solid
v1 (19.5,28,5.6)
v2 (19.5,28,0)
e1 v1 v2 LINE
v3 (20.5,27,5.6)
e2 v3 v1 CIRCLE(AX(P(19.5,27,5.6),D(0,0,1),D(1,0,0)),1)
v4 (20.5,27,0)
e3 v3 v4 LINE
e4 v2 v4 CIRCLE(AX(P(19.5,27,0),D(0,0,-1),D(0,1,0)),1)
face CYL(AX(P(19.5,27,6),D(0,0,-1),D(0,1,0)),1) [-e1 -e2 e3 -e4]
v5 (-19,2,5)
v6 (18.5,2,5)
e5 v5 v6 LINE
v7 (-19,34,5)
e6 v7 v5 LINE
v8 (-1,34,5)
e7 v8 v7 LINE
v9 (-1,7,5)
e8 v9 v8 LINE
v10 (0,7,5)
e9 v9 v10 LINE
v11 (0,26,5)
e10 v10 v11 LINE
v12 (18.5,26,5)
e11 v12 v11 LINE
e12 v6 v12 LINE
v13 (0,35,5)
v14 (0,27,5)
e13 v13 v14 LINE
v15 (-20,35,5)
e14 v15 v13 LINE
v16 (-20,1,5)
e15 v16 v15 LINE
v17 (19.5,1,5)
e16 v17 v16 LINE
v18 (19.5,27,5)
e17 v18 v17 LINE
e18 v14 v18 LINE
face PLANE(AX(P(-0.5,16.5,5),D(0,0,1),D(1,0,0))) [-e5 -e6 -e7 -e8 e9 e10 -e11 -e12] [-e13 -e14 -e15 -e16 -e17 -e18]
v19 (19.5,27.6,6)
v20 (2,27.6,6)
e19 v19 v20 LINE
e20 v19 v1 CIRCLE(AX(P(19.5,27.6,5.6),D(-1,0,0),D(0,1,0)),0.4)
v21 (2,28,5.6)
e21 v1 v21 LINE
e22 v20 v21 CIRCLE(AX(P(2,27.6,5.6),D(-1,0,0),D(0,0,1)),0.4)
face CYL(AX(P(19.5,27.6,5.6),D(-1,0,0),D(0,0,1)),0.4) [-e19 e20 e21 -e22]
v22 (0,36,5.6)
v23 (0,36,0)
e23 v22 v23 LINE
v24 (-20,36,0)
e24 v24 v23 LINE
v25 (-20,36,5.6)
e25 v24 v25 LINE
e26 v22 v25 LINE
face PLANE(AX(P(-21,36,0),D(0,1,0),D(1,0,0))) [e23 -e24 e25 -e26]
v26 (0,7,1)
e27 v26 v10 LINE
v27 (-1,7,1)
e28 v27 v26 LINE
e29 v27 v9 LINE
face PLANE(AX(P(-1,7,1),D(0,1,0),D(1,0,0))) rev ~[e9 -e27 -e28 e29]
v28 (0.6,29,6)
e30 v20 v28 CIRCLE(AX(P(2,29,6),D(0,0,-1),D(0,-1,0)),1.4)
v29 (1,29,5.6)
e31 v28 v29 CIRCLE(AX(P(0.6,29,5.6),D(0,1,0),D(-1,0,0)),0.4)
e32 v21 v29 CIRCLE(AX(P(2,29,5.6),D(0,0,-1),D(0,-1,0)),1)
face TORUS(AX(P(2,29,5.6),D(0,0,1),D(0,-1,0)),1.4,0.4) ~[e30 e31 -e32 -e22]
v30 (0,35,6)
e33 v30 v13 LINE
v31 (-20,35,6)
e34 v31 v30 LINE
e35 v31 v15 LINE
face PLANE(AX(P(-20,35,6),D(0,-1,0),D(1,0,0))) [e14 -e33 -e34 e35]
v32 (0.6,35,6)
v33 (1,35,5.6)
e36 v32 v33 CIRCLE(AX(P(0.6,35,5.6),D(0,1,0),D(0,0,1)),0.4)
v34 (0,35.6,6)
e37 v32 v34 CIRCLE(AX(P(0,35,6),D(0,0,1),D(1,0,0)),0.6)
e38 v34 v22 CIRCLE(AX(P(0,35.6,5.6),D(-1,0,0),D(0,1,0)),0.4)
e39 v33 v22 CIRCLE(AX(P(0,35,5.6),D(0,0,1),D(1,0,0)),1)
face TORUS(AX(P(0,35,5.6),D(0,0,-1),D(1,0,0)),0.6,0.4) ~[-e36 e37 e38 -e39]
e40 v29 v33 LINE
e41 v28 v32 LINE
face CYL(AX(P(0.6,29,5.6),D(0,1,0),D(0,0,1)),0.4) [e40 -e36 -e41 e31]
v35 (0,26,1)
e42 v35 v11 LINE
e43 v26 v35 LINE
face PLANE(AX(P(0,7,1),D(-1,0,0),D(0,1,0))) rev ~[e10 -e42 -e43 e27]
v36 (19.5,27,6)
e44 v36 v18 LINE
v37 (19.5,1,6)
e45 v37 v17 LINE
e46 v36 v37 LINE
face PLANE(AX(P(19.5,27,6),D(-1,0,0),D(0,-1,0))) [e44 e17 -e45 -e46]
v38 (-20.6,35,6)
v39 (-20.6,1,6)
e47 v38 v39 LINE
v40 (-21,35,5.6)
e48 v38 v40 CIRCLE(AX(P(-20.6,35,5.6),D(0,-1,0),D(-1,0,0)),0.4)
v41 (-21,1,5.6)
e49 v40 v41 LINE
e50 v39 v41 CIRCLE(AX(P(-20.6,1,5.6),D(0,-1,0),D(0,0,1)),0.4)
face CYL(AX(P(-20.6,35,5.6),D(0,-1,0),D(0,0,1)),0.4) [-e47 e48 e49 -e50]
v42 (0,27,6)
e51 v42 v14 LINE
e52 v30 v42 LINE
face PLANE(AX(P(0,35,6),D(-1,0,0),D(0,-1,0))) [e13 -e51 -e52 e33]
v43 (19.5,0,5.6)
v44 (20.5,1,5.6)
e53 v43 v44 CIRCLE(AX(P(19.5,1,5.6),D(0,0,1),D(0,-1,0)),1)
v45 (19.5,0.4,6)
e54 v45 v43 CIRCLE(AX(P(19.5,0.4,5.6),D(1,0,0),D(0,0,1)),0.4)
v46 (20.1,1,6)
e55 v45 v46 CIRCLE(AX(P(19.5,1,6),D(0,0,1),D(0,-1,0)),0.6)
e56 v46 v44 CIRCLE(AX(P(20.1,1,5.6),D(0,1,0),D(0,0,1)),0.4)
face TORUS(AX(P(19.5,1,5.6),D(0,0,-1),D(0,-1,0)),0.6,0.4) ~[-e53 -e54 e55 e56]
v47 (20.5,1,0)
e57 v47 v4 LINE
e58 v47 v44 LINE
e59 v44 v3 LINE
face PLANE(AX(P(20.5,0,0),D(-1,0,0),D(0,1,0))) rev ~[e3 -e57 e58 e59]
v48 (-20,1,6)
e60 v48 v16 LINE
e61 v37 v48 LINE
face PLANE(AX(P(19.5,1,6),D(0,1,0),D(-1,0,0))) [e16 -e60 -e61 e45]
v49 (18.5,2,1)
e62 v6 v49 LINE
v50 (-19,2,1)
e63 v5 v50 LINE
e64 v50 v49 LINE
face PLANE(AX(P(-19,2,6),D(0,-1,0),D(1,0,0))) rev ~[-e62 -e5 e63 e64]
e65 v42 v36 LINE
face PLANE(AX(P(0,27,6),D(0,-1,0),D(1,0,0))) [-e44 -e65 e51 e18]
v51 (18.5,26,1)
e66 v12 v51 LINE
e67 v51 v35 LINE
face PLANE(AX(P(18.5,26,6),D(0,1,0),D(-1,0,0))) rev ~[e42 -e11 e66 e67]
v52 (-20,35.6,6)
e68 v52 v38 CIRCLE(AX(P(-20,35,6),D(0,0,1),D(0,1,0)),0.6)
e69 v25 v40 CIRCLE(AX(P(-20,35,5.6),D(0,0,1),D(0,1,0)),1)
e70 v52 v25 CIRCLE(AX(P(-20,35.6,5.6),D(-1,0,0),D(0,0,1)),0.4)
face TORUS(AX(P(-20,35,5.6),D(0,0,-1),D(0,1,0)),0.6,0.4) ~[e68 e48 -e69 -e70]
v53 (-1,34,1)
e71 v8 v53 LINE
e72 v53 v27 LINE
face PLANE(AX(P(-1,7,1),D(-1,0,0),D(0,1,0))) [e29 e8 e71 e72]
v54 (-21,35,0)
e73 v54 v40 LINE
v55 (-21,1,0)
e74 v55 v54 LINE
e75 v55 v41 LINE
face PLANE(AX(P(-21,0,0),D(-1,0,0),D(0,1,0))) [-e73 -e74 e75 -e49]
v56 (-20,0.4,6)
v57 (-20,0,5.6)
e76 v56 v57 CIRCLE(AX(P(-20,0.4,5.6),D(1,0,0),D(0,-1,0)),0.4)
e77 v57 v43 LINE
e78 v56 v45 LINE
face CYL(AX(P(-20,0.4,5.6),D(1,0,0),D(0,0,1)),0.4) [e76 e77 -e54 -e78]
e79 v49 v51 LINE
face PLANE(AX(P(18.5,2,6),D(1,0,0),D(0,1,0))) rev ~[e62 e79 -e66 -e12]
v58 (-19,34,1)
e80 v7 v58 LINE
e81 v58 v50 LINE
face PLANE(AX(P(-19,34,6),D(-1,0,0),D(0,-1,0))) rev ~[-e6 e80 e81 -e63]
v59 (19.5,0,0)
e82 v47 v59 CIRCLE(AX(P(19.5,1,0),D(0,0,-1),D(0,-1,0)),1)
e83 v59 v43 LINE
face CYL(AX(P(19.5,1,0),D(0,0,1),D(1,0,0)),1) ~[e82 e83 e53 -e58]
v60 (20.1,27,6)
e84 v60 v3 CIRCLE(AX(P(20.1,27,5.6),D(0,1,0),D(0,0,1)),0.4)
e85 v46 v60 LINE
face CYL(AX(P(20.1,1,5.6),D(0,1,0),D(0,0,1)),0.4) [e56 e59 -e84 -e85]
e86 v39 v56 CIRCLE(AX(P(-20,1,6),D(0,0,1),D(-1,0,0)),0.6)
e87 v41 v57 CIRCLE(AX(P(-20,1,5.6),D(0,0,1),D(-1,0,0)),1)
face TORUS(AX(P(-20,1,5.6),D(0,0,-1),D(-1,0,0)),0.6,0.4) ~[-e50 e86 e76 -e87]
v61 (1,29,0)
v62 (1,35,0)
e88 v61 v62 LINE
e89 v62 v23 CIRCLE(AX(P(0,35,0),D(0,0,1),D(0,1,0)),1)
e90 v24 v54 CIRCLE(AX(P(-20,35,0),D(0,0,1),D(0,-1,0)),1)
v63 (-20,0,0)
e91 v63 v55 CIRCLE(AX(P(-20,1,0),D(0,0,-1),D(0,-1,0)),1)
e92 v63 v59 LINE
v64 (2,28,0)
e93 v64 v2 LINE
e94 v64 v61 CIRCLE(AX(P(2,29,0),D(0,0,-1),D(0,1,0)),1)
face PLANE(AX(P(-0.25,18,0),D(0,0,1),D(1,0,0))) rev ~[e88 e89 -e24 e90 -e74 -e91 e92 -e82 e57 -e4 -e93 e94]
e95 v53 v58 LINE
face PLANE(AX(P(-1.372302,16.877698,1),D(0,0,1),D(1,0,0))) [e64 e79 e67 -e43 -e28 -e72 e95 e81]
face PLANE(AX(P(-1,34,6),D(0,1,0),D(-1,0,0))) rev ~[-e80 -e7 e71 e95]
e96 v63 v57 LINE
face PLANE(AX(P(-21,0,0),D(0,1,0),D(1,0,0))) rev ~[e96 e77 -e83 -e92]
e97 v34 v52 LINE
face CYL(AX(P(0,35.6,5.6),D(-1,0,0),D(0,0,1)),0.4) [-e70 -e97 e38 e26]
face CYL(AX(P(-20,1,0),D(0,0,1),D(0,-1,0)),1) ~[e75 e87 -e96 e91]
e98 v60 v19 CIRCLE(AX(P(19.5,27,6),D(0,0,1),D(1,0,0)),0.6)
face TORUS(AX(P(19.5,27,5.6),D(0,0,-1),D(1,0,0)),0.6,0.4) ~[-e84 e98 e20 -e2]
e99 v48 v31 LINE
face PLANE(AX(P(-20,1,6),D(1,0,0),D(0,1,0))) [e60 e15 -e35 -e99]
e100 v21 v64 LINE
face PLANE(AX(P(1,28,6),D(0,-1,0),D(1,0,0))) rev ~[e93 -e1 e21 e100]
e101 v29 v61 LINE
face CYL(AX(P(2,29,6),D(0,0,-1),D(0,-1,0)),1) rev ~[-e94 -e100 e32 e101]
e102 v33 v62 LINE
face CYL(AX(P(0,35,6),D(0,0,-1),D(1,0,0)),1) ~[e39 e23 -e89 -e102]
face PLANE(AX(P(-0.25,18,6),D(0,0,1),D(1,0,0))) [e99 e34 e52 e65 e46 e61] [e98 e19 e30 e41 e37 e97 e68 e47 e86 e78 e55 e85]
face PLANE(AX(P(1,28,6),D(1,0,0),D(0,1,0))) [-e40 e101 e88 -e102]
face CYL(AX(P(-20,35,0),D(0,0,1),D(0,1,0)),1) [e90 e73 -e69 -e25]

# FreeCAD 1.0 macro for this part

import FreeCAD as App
import Part
import Sketcher


def edges_at(feature, points):
    """Names of the edges that pass closest to the given points."""
    edges = feature.Shape.Edges
    near = lambda p: min(range(len(edges)), key=lambda i: edges[i].distToShape(Part.Vertex(*p))[0])
    return sorted({f"Edge{near(p) + 1}" for p in points})

doc = App.newDocument("Part")
body = doc.addObject("PartDesign::Body", "Body")

# Sketch on XY plane
sketch1 = body.newObject("Sketcher::SketchObject", "Sketch")
sketch1.AttachmentSupport = (doc.getObject("XY_Plane"), [""])
sketch1.MapMode = "FlatFace"
sketch1.addGeometry(Part.LineSegment(App.Vector(-21, 36, 0), App.Vector(-21, 0, 0)), False)
sketch1.addGeometry(Part.LineSegment(App.Vector(-21, 0, 0), App.Vector(20, 0, 0)), False)
sketch1.addGeometry(Part.LineSegment(App.Vector(20, 0, 0), App.Vector(20, 36, 0)), False)
sketch1.addGeometry(Part.LineSegment(App.Vector(20, 36, 0), App.Vector(-21, 36, 0)), False)
sketch1.addConstraint(Sketcher.Constraint("Coincident", 0, 2, 1, 1))
sketch1.addConstraint(Sketcher.Constraint("Coincident", 1, 2, 2, 1))
sketch1.addConstraint(Sketcher.Constraint("Coincident", 2, 2, 3, 1))
sketch1.addConstraint(Sketcher.Constraint("Coincident", 3, 2, 0, 1))
sketch1.addConstraint(Sketcher.Constraint("Vertical", 0))
sketch1.addConstraint(Sketcher.Constraint("Horizontal", 1))
sketch1.addConstraint(Sketcher.Constraint("Vertical", 2))
sketch1.addConstraint(Sketcher.Constraint("Horizontal", 3))
sketch1.addConstraint(Sketcher.Constraint("PointOnObject", 0, 2, -1))
sketch1.addConstraint(Sketcher.Constraint("DistanceY", 0, 2, 0, 1, 36.0))
sketch1.addConstraint(Sketcher.Constraint("DistanceX", 1, 1, 1, 2, 41.5))
sketch1.addConstraint(Sketcher.Constraint("DistanceX", 0, 2, -1, 1, 21.0))
pad1 = body.newObject("PartDesign::Pad", "Pad")
pad1.Profile = sketch1
pad1.Length = 6

# Sketch on XY plane
sketch2 = body.newObject("Sketcher::SketchObject", "Sketch001")
sketch2.AttachmentSupport = (doc.getObject("XY_Plane"), [""])
sketch2.MapMode = "FlatFace"
sketch2.AttachmentOffset = App.Placement(App.Vector(0, 0, 6), App.Rotation())
sketch2.addGeometry(Part.LineSegment(App.Vector(-19, 2, 0), App.Vector(18, 2, 0)), False)
sketch2.addGeometry(Part.LineSegment(App.Vector(18, 2, 0), App.Vector(18, 26, 0)), False)
sketch2.addGeometry(Part.LineSegment(App.Vector(18, 26, 0), App.Vector(-1, 26, 0)), False)
sketch2.addGeometry(Part.LineSegment(App.Vector(-1, 26, 0), App.Vector(-1, 34, 0)), False)
sketch2.addGeometry(Part.LineSegment(App.Vector(-1, 34, 0), App.Vector(-19, 34, 0)), False)
sketch2.addGeometry(Part.LineSegment(App.Vector(-19, 34, 0), App.Vector(-19, 2, 0)), False)
sketch2.addConstraint(Sketcher.Constraint("Coincident", 0, 2, 1, 1))
sketch2.addConstraint(Sketcher.Constraint("Coincident", 1, 2, 2, 1))
sketch2.addConstraint(Sketcher.Constraint("Coincident", 2, 2, 3, 1))
sketch2.addConstraint(Sketcher.Constraint("Coincident", 3, 2, 4, 1))
sketch2.addConstraint(Sketcher.Constraint("Coincident", 4, 2, 5, 1))
sketch2.addConstraint(Sketcher.Constraint("Coincident", 5, 2, 0, 1))
sketch2.addConstraint(Sketcher.Constraint("Horizontal", 0))
sketch2.addConstraint(Sketcher.Constraint("Vertical", 1))
sketch2.addConstraint(Sketcher.Constraint("Horizontal", 2))
sketch2.addConstraint(Sketcher.Constraint("Vertical", 3))
sketch2.addConstraint(Sketcher.Constraint("Horizontal", 4))
sketch2.addConstraint(Sketcher.Constraint("Vertical", 5))
sketch2.addConstraint(Sketcher.Constraint("DistanceX", 4, 2, 4, 1, 18.0))
sketch2.addConstraint(Sketcher.Constraint("DistanceY", 1, 1, 1, 2, 24.0))
sketch2.addConstraint(Sketcher.Constraint("DistanceY", 3, 1, 3, 2, 8.0))
sketch2.addConstraint(Sketcher.Constraint("DistanceX", 0, 1, 0, 2, 37.5))
sketch2.addConstraint(Sketcher.Constraint("DistanceY", -1, 1, 0, 2, 2.0))
sketch2.addConstraint(Sketcher.Constraint("DistanceX", 2, 2, -1, 1, 1.0))
pocket1 = body.newObject("PartDesign::Pocket", "Pocket")
pocket1.Profile = sketch2
pocket1.Length = 5

# Sketch on XY plane
sketch3 = body.newObject("Sketcher::SketchObject", "Sketch002")
sketch3.AttachmentSupport = (doc.getObject("XY_Plane"), [""])
sketch3.MapMode = "FlatFace"
sketch3.AttachmentOffset = App.Placement(App.Vector(0, 0, 6), App.Rotation())
sketch3.addGeometry(Part.LineSegment(App.Vector(1, 36, 0), App.Vector(1, 28, 0)), False)
sketch3.addGeometry(Part.LineSegment(App.Vector(1, 28, 0), App.Vector(20, 28, 0)), False)
sketch3.addGeometry(Part.LineSegment(App.Vector(20, 28, 0), App.Vector(20, 36, 0)), False)
sketch3.addGeometry(Part.LineSegment(App.Vector(20, 36, 0), App.Vector(1, 36, 0)), False)
sketch3.addConstraint(Sketcher.Constraint("Coincident", 0, 2, 1, 1))
sketch3.addConstraint(Sketcher.Constraint("Coincident", 1, 2, 2, 1))
sketch3.addConstraint(Sketcher.Constraint("Coincident", 2, 2, 3, 1))
sketch3.addConstraint(Sketcher.Constraint("Coincident", 3, 2, 0, 1))
sketch3.addConstraint(Sketcher.Constraint("Vertical", 0))
sketch3.addConstraint(Sketcher.Constraint("Horizontal", 1))
sketch3.addConstraint(Sketcher.Constraint("Vertical", 2))
sketch3.addConstraint(Sketcher.Constraint("Horizontal", 3))
sketch3.addConstraint(Sketcher.Constraint("DistanceY", 0, 2, 0, 1, 8.0))
sketch3.addConstraint(Sketcher.Constraint("DistanceX", 1, 1, 1, 2, 19.5))
sketch3.addConstraint(Sketcher.Constraint("DistanceX", -1, 1, 0, 2, 1.0))
sketch3.addConstraint(Sketcher.Constraint("DistanceY", -1, 1, 0, 2, 28.0))
pocket2 = body.newObject("PartDesign::Pocket", "Pocket001")
pocket2.Profile = sketch3
pocket2.Type = "ThroughAll"

# Sketch on XY plane
sketch4 = body.newObject("Sketcher::SketchObject", "Sketch003")
sketch4.AttachmentSupport = (doc.getObject("XY_Plane"), [""])
sketch4.MapMode = "FlatFace"
sketch4.AttachmentOffset = App.Placement(App.Vector(0, 0, 6), App.Rotation())
sketch4.addGeometry(Part.LineSegment(App.Vector(0, 35, 0), App.Vector(-20, 35, 0)), False)
sketch4.addGeometry(Part.LineSegment(App.Vector(-20, 35, 0), App.Vector(-20, 1, 0)), False)
sketch4.addGeometry(Part.LineSegment(App.Vector(-20, 1, 0), App.Vector(20, 1, 0)), False)
sketch4.addGeometry(Part.LineSegment(App.Vector(20, 1, 0), App.Vector(20, 27, 0)), False)
sketch4.addGeometry(Part.LineSegment(App.Vector(20, 27, 0), App.Vector(0, 27, 0)), False)
sketch4.addGeometry(Part.LineSegment(App.Vector(0, 27, 0), App.Vector(0, 35, 0)), False)
sketch4.addConstraint(Sketcher.Constraint("Coincident", 0, 2, 1, 1))
sketch4.addConstraint(Sketcher.Constraint("Coincident", 1, 2, 2, 1))
sketch4.addConstraint(Sketcher.Constraint("Coincident", 2, 2, 3, 1))
sketch4.addConstraint(Sketcher.Constraint("Coincident", 3, 2, 4, 1))
sketch4.addConstraint(Sketcher.Constraint("Coincident", 4, 2, 5, 1))
sketch4.addConstraint(Sketcher.Constraint("Coincident", 5, 2, 0, 1))
sketch4.addConstraint(Sketcher.Constraint("Horizontal", 0))
sketch4.addConstraint(Sketcher.Constraint("Vertical", 1))
sketch4.addConstraint(Sketcher.Constraint("Horizontal", 2))
sketch4.addConstraint(Sketcher.Constraint("Vertical", 3))
sketch4.addConstraint(Sketcher.Constraint("Horizontal", 4))
sketch4.addConstraint(Sketcher.Constraint("Vertical", 5))
sketch4.addConstraint(Sketcher.Constraint("PointOnObject", 4, 2, -2))
sketch4.addConstraint(Sketcher.Constraint("DistanceX", 0, 2, 0, 1, 20.0))
sketch4.addConstraint(Sketcher.Constraint("DistanceY", 1, 2, 1, 1, 34.0))
sketch4.addConstraint(Sketcher.Constraint("DistanceY", 3, 1, 3, 2, 26.0))
sketch4.addConstraint(Sketcher.Constraint("DistanceX", 2, 1, 2, 2, 39.5))
sketch4.addConstraint(Sketcher.Constraint("DistanceY", -1, 1, 0, 2, 35.0))
pocket3 = body.newObject("PartDesign::Pocket", "Pocket002")
pocket3.Profile = sketch4
pocket3.Length = 1

# Sketch on XY plane
sketch5 = body.newObject("Sketcher::SketchObject", "Sketch004")
sketch5.AttachmentSupport = (doc.getObject("XY_Plane"), [""])
sketch5.MapMode = "FlatFace"
sketch5.AttachmentOffset = App.Placement(App.Vector(0, 0, 1), App.Rotation())
sketch5.addGeometry(Part.LineSegment(App.Vector(-1, 26, 0), App.Vector(-1, 7, 0)), False)
sketch5.addGeometry(Part.LineSegment(App.Vector(-1, 7, 0), App.Vector(0, 7, 0)), False)
sketch5.addGeometry(Part.LineSegment(App.Vector(0, 7, 0), App.Vector(0, 26, 0)), False)
sketch5.addGeometry(Part.LineSegment(App.Vector(0, 26, 0), App.Vector(-1, 26, 0)), False)
sketch5.addConstraint(Sketcher.Constraint("Coincident", 0, 2, 1, 1))
sketch5.addConstraint(Sketcher.Constraint("Coincident", 1, 2, 2, 1))
sketch5.addConstraint(Sketcher.Constraint("Coincident", 2, 2, 3, 1))
sketch5.addConstraint(Sketcher.Constraint("Coincident", 3, 2, 0, 1))
sketch5.addConstraint(Sketcher.Constraint("Vertical", 0))
sketch5.addConstraint(Sketcher.Constraint("Horizontal", 1))
sketch5.addConstraint(Sketcher.Constraint("Vertical", 2))
sketch5.addConstraint(Sketcher.Constraint("Horizontal", 3))
sketch5.addConstraint(Sketcher.Constraint("PointOnObject", 1, 2, -2))
sketch5.addConstraint(Sketcher.Constraint("DistanceX", 1, 1, 1, 2, 1.0))
sketch5.addConstraint(Sketcher.Constraint("DistanceY", 0, 2, 0, 1, 19.0))
sketch5.addConstraint(Sketcher.Constraint("DistanceY", -1, 1, 0, 2, 7.0))
pad2 = body.newObject("PartDesign::Pad", "Pad001")
pad2.Profile = sketch5
pad2.Length = 4
doc.recompute()

fillet = body.newObject("PartDesign::Fillet", "Fillet")
fillet.Base = (pad2, edges_at(pad2, [
    (-21, 0, 3),
    (20.5, 0, 3),
    (20.5, 28, 3),
    (1, 28, 3),
    (1, 36, 3),
    (-21, 36, 3),
]))
fillet.Radius = 1
doc.recompute()

fillet2 = body.newObject("PartDesign::Fillet", "Fillet001")
fillet2.Base = (fillet, edges_at(fillet, [
    (20.5, 14, 6),
    (20.207, 0.293, 6),
    (-0.25, 0, 6),
    (20.207, 27.707, 6),
    (10.75, 28, 6),
    (1.293, 28.293, 6),
    (1, 32, 6),
    (0.707, 35.707, 6),
    (-10, 36, 6),
    (-21, 18, 6),
    (-20.707, 0.293, 6),
]))
fillet2.Radius = 0.4

doc.recompute()
